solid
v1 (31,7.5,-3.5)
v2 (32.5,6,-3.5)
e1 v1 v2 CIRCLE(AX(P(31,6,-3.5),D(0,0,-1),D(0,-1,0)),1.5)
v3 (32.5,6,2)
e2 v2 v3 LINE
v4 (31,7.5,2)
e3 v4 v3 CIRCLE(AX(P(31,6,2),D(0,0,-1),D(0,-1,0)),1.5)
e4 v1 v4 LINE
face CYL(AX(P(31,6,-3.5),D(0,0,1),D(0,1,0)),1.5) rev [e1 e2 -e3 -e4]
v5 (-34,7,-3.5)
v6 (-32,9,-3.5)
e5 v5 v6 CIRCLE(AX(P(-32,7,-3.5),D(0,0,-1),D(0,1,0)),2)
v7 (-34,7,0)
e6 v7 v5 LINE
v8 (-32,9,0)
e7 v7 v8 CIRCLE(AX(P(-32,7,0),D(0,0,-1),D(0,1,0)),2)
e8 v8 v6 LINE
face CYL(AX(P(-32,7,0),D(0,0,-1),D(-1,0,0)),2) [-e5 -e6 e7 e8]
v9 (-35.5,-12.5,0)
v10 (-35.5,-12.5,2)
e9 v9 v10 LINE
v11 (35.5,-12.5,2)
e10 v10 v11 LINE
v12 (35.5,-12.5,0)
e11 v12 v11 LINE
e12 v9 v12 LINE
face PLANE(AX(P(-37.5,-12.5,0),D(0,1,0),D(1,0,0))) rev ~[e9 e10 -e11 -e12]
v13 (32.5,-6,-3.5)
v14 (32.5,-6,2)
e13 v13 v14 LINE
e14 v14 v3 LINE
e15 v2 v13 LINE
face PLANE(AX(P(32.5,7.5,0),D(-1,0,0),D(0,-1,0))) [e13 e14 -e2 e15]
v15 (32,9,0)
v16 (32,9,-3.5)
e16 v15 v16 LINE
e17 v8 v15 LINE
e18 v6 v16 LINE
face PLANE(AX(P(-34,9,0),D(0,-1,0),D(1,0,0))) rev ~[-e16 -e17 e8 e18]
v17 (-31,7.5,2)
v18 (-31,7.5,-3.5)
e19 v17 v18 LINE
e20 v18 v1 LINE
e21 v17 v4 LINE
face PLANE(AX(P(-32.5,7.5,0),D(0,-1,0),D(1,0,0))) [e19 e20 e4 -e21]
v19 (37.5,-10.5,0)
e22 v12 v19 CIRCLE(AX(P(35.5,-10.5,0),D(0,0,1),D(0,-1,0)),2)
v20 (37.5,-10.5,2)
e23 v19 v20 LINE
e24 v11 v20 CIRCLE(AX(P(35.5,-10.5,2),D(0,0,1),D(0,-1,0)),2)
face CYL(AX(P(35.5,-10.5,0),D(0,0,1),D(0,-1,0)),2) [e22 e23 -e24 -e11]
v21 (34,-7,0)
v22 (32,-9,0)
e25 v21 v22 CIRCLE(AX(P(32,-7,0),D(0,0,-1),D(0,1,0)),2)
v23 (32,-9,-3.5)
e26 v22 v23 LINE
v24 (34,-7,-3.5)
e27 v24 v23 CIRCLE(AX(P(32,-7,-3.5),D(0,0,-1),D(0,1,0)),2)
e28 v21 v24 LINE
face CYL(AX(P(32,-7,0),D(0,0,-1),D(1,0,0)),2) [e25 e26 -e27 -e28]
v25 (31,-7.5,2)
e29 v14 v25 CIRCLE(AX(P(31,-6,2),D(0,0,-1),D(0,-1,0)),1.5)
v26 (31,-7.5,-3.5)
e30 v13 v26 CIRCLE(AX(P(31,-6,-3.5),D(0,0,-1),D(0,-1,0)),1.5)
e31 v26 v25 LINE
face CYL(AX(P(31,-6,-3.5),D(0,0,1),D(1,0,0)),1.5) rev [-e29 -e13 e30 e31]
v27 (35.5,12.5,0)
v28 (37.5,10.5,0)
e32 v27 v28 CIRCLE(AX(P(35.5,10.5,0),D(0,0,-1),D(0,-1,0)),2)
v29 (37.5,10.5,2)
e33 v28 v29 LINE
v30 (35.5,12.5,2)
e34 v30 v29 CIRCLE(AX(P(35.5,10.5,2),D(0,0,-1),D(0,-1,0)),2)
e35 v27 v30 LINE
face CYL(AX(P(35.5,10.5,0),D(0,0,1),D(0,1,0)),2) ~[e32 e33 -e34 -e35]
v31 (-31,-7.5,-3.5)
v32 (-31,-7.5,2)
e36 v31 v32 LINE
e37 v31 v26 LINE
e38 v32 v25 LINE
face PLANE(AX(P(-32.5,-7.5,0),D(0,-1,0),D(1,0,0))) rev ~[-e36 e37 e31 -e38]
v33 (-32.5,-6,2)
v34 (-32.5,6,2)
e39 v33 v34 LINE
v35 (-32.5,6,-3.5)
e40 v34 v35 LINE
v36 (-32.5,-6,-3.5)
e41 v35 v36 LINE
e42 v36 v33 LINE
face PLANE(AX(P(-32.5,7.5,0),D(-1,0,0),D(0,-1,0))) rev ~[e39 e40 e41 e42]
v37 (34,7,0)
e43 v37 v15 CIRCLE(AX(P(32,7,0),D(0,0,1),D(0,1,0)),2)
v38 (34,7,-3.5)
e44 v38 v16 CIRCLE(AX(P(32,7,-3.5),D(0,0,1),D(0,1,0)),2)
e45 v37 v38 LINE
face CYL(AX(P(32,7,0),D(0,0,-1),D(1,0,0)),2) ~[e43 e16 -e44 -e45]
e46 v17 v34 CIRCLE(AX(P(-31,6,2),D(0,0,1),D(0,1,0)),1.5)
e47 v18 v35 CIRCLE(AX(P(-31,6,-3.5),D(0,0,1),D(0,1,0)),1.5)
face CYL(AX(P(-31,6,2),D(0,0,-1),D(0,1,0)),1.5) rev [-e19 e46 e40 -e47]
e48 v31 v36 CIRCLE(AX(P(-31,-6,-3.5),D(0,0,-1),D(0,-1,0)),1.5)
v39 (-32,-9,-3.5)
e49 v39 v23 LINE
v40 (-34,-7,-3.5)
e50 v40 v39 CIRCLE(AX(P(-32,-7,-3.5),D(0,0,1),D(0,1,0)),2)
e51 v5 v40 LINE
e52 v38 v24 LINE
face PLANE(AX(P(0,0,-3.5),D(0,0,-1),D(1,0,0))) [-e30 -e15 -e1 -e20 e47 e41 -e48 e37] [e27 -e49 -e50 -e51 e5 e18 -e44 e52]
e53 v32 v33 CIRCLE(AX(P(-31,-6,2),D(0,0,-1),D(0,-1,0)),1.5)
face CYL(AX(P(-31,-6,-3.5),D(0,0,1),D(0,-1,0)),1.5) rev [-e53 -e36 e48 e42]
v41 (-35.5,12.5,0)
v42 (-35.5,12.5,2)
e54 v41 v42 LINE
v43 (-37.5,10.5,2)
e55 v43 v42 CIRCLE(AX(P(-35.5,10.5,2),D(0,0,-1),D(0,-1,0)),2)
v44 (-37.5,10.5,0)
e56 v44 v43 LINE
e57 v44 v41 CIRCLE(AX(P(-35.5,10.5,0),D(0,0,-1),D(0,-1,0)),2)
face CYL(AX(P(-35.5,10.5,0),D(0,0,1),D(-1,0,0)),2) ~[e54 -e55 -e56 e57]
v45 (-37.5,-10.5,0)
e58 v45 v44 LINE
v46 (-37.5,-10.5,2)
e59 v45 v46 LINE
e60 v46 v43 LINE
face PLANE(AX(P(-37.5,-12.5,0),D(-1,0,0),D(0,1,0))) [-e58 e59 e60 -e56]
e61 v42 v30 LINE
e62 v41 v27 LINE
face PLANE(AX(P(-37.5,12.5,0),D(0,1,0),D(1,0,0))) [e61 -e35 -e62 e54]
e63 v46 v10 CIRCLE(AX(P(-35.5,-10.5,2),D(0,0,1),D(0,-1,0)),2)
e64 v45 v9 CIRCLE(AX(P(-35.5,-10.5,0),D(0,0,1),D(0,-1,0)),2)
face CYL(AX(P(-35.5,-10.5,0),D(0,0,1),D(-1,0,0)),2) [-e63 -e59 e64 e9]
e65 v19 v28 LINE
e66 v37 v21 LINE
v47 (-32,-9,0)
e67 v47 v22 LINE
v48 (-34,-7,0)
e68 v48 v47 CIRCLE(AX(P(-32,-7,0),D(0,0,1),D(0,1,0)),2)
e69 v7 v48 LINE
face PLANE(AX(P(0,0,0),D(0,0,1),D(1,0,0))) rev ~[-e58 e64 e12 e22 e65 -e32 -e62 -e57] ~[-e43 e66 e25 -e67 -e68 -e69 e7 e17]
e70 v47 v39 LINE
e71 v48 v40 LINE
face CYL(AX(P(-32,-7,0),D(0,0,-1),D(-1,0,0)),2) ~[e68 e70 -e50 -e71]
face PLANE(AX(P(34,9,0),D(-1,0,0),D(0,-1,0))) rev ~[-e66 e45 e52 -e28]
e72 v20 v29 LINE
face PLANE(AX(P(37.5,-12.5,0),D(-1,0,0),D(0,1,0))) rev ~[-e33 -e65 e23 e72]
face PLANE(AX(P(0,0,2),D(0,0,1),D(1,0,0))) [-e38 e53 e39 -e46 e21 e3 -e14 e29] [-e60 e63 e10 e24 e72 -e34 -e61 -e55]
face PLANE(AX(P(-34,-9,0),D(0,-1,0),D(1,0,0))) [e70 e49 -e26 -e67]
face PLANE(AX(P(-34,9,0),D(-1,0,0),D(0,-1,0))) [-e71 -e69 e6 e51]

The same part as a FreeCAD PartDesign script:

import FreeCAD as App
import Part
import Sketcher

V = App.Vector


def edges_at(feature, points):
    """Names of the edges that pass closest to the given points."""
    edges = feature.Shape.Edges
    near = lambda p: min(range(len(edges)), key=lambda i: edges[i].distToShape(Part.Vertex(*p))[0])
    return sorted({f"Edge{near(p) + 1}" for p in points})


def add_polygon(sketch, points):
    """Adds a closed chain of lines whose ends are joined by coincident constraints."""
    first, n = sketch.GeometryCount, len(points)
    for a, b in zip(points, points[1:] + points[:1]):
        sketch.addGeometry(Part.LineSegment(App.Vector(*a, 0), App.Vector(*b, 0)), False)
    for i in range(n):
        sketch.addConstraint(Sketcher.Constraint("Coincident", first + i, 2, first + (i + 1) % n, 1))

doc = App.newDocument("Part")
body = doc.addObject("PartDesign::Body", "Body")

# Sketch on XY plane
sketch1 = body.newObject("Sketcher::SketchObject", "Sketch")
sketch1.AttachmentSupport = (doc.getObject("XY_Plane"), [""])
sketch1.MapMode = "FlatFace"
add_polygon(sketch1, [(-38, 12), (-38, -12), (38, -12), (38, 12)])  # lines 0-3
add_polygon(sketch1, [(32, -8), (-32, -8), (-32, 8), (32, 8)])  # lines 4-7
sketch1.addConstraint([
    Sketcher.Constraint("Vertical", 0),
    Sketcher.Constraint("Horizontal", 1),
    Sketcher.Constraint("Vertical", 2),
    Sketcher.Constraint("Horizontal", 3),
    Sketcher.Constraint("Horizontal", 4),
    Sketcher.Constraint("Vertical", 5),
    Sketcher.Constraint("Horizontal", 6),
    Sketcher.Constraint("Vertical", 7),
    Sketcher.Constraint("Symmetric", 0, 2, 2, 2, -1, 1),
    Sketcher.Constraint("Symmetric", 4, 2, 6, 2, -1, 1),
    Sketcher.Constraint("DistanceX", 1, 1, 1, 2, 75.0),
    Sketcher.Constraint("DistanceX", 4, 2, 4, 1, 65.0),
    Sketcher.Constraint("DistanceY", 0, 2, 0, 1, 25.0),
    Sketcher.Constraint("DistanceY", 5, 1, 5, 2, 15.0),
])
pad1 = body.newObject("PartDesign::Pad", "Pad")
pad1.Profile = sketch1
pad1.Length = 2
doc.recompute()

fillet = body.newObject("PartDesign::Fillet", "Fillet")
fillet.Base = (pad1, edges_at(pad1, [
    (37.5, 12.5, 1),
    (37.5, -12.5, 1),
    (-37.5, -12.5, 1),
    (-37.5, 12.5, 1),
]))
fillet.Radius = 2

# Sketch on XY plane
sketch2 = body.newObject("Sketcher::SketchObject", "Sketch001")
sketch2.AttachmentSupport = (doc.getObject("XY_Plane"), [""])
sketch2.MapMode = "FlatFace"
add_polygon(sketch2, [(-34, -9), (-34, 9), (34, 9), (34, -9)])  # lines 0-3
add_polygon(sketch2, [(32, 8), (-32, 8), (-32, -8), (32, -8)])  # lines 4-7
sketch2.addConstraint([
    Sketcher.Constraint("Vertical", 0),
    Sketcher.Constraint("Horizontal", 1),
    Sketcher.Constraint("Vertical", 2),
    Sketcher.Constraint("Horizontal", 3),
    Sketcher.Constraint("Horizontal", 4),
    Sketcher.Constraint("Vertical", 5),
    Sketcher.Constraint("Horizontal", 6),
    Sketcher.Constraint("Vertical", 7),
    Sketcher.Constraint("Symmetric", 0, 2, 2, 2, -1, 1),
    Sketcher.Constraint("Symmetric", 4, 2, 6, 2, -1, 1),
    Sketcher.Constraint("DistanceX", 1, 1, 1, 2, 68.0),
    Sketcher.Constraint("DistanceX", 4, 2, 4, 1, 65.0),
    Sketcher.Constraint("DistanceY", 0, 1, 0, 2, 18.0),
    Sketcher.Constraint("DistanceY", 5, 2, 5, 1, 15.0),
])
pad2 = body.newObject("PartDesign::Pad", "Pad001")
pad2.Profile = sketch2
pad2.Length = 3.5
pad2.Reversed = True
doc.recompute()

fillet2 = body.newObject("PartDesign::Fillet", "Fillet001")
fillet2.Base = (pad2, edges_at(pad2, [
    (34, -9, -1.75),
    (-34, -9, -1.75),
    (-34, 9, -1.75),
    (34, 9, -1.75),
]))
fillet2.Radius = 2
doc.recompute()

fillet3 = body.newObject("PartDesign::Fillet", "Fillet002")
fillet3.Base = (fillet2, edges_at(fillet2, [
    (32.5, 7.5, -0.75),
    (32.5, -7.5, -0.75),
    (-32.5, -7.5, -0.75),
    (-32.5, 7.5, -0.75),
]))
fillet3.Radius = 1.5

doc.recompute()
